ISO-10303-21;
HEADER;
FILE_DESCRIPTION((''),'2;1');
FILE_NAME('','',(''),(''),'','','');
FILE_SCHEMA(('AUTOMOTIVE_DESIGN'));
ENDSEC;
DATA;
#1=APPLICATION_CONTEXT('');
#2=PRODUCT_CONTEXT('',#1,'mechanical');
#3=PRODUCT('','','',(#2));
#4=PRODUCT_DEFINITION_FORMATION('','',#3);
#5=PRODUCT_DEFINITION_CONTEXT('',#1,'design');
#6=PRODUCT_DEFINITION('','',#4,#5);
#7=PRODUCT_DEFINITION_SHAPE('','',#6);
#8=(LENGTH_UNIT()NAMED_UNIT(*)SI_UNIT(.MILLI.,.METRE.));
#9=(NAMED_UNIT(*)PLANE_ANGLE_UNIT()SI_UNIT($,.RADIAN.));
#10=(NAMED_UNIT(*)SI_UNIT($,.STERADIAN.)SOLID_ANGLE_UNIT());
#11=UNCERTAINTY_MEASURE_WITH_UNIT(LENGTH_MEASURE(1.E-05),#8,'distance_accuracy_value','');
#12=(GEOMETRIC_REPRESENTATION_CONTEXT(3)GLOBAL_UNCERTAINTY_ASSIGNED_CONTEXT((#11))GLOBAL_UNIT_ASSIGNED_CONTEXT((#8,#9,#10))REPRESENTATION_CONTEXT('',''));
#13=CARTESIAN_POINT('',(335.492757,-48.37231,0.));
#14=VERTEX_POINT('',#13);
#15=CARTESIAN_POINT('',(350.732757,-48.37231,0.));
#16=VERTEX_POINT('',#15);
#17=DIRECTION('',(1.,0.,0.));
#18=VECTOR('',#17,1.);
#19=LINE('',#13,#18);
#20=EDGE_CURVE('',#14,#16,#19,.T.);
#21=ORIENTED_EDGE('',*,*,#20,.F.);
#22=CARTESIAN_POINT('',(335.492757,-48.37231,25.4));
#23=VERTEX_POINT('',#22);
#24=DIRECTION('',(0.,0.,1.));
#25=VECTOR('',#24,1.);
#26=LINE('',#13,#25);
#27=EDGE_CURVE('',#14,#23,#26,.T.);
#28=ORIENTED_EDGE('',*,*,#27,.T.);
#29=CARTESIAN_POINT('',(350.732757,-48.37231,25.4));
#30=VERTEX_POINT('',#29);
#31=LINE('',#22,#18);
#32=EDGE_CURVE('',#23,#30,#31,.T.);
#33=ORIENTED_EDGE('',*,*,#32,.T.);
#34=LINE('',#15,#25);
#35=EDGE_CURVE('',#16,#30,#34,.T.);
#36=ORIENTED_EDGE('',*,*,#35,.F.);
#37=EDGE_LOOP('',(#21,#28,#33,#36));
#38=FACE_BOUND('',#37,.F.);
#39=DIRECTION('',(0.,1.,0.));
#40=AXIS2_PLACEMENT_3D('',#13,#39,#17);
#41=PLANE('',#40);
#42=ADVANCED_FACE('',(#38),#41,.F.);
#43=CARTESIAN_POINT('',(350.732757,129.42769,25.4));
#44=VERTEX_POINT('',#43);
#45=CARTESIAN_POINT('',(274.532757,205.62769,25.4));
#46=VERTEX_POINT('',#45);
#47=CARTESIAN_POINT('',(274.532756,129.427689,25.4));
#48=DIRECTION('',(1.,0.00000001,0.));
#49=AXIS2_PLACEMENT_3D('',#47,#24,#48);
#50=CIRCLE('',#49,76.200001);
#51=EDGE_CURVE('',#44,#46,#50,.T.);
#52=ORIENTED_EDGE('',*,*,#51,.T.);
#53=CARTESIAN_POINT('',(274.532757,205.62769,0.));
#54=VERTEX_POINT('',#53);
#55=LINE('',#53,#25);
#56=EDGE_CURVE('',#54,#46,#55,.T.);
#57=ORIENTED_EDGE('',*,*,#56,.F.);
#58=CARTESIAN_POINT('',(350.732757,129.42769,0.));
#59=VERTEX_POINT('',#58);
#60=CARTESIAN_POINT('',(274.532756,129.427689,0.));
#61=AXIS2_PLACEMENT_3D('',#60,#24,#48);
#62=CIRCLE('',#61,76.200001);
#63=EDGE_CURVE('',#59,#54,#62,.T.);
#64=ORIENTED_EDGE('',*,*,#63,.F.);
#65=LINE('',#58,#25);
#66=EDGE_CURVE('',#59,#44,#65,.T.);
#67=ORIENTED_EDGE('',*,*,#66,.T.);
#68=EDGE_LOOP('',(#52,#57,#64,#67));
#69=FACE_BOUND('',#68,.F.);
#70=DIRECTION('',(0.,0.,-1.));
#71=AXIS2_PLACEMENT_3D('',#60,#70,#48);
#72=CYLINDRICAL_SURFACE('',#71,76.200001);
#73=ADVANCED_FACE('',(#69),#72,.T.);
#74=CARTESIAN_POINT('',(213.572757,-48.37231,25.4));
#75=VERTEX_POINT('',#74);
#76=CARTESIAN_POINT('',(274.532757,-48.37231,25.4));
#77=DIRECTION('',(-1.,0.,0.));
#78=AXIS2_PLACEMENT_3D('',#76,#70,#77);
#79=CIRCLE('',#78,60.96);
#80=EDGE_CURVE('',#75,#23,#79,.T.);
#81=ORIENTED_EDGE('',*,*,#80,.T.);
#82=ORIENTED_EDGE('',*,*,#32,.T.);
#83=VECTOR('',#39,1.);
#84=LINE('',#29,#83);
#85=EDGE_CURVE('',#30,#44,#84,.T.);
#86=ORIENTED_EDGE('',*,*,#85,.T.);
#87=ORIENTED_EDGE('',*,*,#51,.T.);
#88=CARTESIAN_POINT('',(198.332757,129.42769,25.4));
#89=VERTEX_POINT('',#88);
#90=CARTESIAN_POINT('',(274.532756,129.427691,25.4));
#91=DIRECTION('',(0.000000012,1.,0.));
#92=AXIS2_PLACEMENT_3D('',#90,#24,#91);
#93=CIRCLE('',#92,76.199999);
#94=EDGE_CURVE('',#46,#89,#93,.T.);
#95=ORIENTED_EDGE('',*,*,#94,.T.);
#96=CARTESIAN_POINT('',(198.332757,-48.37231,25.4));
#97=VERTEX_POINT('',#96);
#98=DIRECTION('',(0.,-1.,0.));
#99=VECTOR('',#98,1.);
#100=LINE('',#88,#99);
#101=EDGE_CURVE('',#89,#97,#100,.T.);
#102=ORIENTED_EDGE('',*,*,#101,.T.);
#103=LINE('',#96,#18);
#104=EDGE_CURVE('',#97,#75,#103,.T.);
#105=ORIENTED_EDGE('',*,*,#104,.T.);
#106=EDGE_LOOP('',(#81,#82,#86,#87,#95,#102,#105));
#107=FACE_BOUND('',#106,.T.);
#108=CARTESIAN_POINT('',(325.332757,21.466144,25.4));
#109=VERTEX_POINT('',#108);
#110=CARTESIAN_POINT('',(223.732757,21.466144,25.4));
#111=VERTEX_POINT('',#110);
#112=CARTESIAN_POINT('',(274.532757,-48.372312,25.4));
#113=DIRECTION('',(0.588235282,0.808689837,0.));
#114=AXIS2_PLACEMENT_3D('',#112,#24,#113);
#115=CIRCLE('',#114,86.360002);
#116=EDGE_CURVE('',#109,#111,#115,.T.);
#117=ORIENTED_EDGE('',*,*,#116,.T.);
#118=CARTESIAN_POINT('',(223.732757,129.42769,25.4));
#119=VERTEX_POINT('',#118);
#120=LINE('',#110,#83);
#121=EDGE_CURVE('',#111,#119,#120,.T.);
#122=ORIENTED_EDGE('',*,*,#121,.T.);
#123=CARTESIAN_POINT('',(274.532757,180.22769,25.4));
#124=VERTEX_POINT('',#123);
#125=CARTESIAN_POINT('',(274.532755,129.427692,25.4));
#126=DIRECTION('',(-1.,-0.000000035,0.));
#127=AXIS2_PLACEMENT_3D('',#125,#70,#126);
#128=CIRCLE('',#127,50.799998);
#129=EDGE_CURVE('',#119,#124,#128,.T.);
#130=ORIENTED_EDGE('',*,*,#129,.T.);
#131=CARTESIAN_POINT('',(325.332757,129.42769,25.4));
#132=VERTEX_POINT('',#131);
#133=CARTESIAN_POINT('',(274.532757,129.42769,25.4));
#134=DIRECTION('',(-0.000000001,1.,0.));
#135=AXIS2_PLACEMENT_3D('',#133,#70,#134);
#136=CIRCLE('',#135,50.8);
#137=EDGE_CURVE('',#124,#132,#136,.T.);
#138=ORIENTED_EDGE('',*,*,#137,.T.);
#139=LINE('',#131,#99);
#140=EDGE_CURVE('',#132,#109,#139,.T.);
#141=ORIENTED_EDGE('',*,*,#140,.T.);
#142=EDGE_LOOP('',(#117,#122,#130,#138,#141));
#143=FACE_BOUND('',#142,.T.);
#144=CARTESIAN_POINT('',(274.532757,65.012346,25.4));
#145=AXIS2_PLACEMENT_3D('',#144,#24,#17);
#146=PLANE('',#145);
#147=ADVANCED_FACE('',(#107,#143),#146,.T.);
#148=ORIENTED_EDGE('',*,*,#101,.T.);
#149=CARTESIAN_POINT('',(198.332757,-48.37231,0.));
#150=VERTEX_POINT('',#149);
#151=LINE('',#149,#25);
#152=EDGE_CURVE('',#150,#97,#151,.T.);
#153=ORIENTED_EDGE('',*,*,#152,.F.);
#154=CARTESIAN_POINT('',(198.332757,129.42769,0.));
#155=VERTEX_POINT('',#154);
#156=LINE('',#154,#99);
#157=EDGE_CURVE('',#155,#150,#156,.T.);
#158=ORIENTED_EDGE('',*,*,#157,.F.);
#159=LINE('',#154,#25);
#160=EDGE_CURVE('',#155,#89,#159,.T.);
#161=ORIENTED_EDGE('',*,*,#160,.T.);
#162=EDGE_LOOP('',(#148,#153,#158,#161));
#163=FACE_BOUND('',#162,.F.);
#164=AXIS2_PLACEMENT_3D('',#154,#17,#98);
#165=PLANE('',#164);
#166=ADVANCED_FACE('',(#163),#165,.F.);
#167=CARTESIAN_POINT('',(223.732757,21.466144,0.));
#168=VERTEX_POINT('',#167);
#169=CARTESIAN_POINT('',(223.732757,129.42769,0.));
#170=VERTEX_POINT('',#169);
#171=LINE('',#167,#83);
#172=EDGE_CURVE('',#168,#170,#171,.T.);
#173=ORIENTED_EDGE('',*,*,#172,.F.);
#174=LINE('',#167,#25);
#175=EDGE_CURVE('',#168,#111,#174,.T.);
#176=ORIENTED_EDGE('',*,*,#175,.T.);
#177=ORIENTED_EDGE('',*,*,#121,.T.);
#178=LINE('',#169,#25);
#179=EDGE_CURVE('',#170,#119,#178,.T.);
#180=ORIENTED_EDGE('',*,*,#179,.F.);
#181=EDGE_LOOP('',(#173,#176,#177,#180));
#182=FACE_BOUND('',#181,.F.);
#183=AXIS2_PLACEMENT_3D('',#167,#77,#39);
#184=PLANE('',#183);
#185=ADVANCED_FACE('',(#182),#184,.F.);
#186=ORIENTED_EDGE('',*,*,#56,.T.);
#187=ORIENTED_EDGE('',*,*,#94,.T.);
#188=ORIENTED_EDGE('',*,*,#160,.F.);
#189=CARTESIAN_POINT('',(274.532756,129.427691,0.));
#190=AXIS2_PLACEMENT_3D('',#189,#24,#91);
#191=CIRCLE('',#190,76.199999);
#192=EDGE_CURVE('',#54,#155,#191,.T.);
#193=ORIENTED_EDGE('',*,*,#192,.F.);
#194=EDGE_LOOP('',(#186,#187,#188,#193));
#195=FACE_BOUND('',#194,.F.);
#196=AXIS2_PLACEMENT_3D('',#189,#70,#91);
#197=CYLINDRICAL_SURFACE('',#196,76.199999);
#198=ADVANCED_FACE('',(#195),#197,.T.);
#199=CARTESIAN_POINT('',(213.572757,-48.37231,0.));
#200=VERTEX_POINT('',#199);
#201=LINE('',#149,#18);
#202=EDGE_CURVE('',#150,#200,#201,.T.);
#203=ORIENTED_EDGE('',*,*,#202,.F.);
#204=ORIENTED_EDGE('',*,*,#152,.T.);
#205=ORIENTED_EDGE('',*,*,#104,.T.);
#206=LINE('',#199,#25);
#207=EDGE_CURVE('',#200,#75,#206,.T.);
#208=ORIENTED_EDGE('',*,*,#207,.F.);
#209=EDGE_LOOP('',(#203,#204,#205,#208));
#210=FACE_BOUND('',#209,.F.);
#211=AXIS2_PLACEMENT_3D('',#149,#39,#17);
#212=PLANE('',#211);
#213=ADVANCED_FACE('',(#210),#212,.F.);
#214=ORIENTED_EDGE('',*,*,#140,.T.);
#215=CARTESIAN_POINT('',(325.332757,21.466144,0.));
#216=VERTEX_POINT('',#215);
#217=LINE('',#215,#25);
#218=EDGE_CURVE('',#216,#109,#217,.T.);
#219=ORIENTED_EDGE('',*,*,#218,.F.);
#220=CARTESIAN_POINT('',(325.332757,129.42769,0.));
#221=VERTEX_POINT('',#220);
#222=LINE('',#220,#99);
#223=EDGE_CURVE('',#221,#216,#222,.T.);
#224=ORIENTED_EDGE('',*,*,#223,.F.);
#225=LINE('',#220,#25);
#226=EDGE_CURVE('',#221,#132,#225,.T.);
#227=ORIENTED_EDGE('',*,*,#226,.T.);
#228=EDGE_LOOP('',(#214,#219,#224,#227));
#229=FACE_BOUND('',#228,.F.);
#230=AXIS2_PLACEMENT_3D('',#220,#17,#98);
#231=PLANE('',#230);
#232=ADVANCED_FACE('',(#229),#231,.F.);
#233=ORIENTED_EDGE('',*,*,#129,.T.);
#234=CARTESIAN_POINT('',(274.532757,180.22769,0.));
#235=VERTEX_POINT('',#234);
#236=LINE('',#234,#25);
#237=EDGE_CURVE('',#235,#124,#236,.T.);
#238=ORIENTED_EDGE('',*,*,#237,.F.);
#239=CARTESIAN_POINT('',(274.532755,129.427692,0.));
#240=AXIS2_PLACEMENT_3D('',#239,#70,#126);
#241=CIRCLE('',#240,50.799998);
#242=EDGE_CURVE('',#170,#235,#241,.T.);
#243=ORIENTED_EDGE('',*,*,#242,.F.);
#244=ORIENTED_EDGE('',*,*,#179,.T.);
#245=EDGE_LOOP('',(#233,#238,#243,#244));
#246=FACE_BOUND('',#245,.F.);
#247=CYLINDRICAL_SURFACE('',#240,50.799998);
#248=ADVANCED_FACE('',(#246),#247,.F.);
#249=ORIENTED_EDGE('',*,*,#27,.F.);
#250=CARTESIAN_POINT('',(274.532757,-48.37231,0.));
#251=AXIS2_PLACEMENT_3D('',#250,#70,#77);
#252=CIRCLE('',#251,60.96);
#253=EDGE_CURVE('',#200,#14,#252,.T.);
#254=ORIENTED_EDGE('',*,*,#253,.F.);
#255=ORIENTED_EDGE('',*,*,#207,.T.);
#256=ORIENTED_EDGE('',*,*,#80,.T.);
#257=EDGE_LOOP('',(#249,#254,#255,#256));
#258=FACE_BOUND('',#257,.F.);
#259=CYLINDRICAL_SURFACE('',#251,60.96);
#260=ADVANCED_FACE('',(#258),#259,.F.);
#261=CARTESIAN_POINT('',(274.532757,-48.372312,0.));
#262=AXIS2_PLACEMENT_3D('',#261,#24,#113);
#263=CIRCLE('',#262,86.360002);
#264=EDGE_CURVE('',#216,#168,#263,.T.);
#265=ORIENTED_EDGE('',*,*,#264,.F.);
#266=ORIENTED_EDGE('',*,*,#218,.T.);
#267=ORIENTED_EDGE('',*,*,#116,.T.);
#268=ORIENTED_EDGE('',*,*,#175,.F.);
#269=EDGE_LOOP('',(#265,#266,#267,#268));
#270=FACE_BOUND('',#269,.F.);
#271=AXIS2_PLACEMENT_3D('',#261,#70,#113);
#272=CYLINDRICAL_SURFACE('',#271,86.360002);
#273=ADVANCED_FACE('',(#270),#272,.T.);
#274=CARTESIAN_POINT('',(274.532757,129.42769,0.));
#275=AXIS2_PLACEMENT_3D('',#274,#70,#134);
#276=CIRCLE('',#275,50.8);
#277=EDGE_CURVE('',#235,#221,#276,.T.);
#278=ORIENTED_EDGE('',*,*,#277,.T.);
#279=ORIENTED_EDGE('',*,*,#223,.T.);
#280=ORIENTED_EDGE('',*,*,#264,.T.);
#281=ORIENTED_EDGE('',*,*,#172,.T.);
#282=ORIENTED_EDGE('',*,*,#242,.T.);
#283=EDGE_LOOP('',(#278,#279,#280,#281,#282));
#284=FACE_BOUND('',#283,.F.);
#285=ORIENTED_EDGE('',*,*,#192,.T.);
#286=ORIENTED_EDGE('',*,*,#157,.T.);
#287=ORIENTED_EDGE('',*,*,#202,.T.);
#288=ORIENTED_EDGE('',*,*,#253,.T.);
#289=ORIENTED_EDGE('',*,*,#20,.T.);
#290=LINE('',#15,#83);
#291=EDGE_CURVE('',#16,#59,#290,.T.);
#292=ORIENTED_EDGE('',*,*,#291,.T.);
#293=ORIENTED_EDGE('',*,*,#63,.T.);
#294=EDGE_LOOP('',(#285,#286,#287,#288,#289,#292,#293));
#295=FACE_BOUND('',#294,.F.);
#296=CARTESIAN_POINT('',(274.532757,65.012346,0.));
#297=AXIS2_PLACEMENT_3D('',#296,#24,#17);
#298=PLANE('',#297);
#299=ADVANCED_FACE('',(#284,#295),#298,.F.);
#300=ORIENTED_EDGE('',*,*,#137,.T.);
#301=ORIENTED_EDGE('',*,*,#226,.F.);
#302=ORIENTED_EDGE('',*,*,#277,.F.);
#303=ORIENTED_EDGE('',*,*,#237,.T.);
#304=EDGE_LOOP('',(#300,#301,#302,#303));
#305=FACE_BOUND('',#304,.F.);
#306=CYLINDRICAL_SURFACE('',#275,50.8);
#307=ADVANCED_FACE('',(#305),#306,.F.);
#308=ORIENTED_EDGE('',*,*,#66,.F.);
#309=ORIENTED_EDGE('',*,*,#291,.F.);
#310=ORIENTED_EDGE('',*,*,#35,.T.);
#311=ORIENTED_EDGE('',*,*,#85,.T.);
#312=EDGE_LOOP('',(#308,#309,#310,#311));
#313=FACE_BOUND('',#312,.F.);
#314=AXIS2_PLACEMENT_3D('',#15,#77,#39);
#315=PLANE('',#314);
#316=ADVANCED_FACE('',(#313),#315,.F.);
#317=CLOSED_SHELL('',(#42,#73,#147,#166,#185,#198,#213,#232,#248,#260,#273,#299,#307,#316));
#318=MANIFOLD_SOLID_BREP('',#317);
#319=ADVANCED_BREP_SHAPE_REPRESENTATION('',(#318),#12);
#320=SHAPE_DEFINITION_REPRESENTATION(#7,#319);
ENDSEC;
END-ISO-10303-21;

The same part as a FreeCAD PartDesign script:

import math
import FreeCAD as App
import Part
import Sketcher

V = App.Vector
Q = App.Units.Quantity

doc = App.newDocument("Part")
body = doc.addObject("PartDesign::Body", "Body")

# Sketch on XY plane
sketch1 = body.newObject("Sketcher::SketchObject", "Sketch")
sketch1.AttachmentSupport = (doc.getObject("XY_Plane"), [""])
sketch1.MapMode = "FlatFace"
sketch1.addGeometry(Part.LineSegment(V(198, 129, 0), V(198, -48, 0)), False)
sketch1.addGeometry(Part.LineSegment(V(198, -48, 0), V(214, -48, 0)), False)
sketch1.addGeometry(Part.ArcOfCircle(Part.Circle(V(275, -48, 0), V(0, 0, 1), 61), math.radians(0), math.radians(180)), False)
sketch1.addGeometry(Part.LineSegment(V(335, -48, 0), V(351, -48, 0)), False)
sketch1.addGeometry(Part.LineSegment(V(351, -48, 0), V(351, 129, 0)), False)
sketch1.addGeometry(Part.ArcOfCircle(Part.Circle(V(275, 129, 0), V(0, 0, 1), 76), math.radians(0), math.radians(90)), False)
sketch1.addGeometry(Part.ArcOfCircle(Part.Circle(V(275, 129, 0), V(0, 0, 1), 76), math.radians(90), math.radians(180)), False)
sketch1.addGeometry(Part.LineSegment(V(224, 21, 0), V(224, 129, 0)), False)
sketch1.addGeometry(Part.ArcOfCircle(Part.Circle(V(275, 129, 0), V(0, 0, 1), 51), math.radians(90), math.radians(180)), False)
sketch1.addGeometry(Part.ArcOfCircle(Part.Circle(V(275, 129, 0), V(0, 0, 1), 51), math.radians(0), math.radians(90)), False)
sketch1.addGeometry(Part.LineSegment(V(325, 129, 0), V(325, 21, 0)), False)
sketch1.addGeometry(Part.ArcOfCircle(Part.Circle(V(275, -48, 0), V(0, 0, 1), 86), math.radians(54), math.radians(126)), False)
sketch1.addConstraint(Sketcher.Constraint("Coincident", 0, 2, 1, 1))
sketch1.addConstraint(Sketcher.Constraint("Coincident", 1, 2, 2, 2))
sketch1.addConstraint(Sketcher.Constraint("Coincident", 2, 1, 3, 1))
sketch1.addConstraint(Sketcher.Constraint("Coincident", 3, 2, 4, 1))
sketch1.addConstraint(Sketcher.Constraint("Tangent", 4, 2, 5, 1))
sketch1.addConstraint(Sketcher.Constraint("Tangent", 5, 2, 6, 1))
sketch1.addConstraint(Sketcher.Constraint("Tangent", 6, 2, 0, 1))
sketch1.addConstraint(Sketcher.Constraint("Tangent", 7, 2, 8, 2))
sketch1.addConstraint(Sketcher.Constraint("Tangent", 8, 1, 9, 2))
sketch1.addConstraint(Sketcher.Constraint("Tangent", 9, 1, 10, 1))
sketch1.addConstraint(Sketcher.Constraint("Coincident", 10, 2, 11, 1))
sketch1.addConstraint(Sketcher.Constraint("Coincident", 11, 2, 7, 1))
sketch1.addConstraint(Sketcher.Constraint("Vertical", 0))
sketch1.addConstraint(Sketcher.Constraint("Horizontal", 1))
sketch1.addConstraint(Sketcher.Constraint("Horizontal", 3))
sketch1.addConstraint(Sketcher.Constraint("Vertical", 4))
sketch1.addConstraint(Sketcher.Constraint("Vertical", 7))
sketch1.addConstraint(Sketcher.Constraint("Vertical", 10))
sketch1.addConstraint(Sketcher.Constraint("Coincident", 8, 3, 5, 3))
sketch1.addConstraint(Sketcher.Constraint("Coincident", 11, 3, 2, 3))
sketch1.addConstraint(Sketcher.Constraint("Equal", 5, 6))
sketch1.addConstraint(Sketcher.Constraint("Equal", 8, 9))
sketch1.addConstraint(Sketcher.Constraint("Horizontal", 11, 3, 0, 2))
sketch1.addConstraint(Sketcher.Constraint("Horizontal", 1, 2, 2, 1))
sketch1.addConstraint(Sketcher.Constraint("Horizontal", 10, 2, 11, 2))
sketch1.addConstraint(Sketcher.Constraint("Vertical", 11, 3, 5, 2))
sketch1.addConstraint(Sketcher.Constraint("Vertical", 5, 2, 8, 1))
sketch1.addConstraint(Sketcher.Constraint("Radius", 5, Q("3 in")))
sketch1.addConstraint(Sketcher.Constraint("Radius", 8, Q("1.9999999 in")))
sketch1.addConstraint(Sketcher.Constraint("Radius", 2, Q("2.4 in")))
sketch1.addConstraint(Sketcher.Constraint("Radius", 11, Q("3.4000001 in")))
sketch1.addConstraint(Sketcher.Constraint("DistanceY", 0, 2, 0, 1, Q("7 in")))
sketch1.addConstraint(Sketcher.Constraint("DistanceY", 2, 3, -1, 1, Q("48.37231 mm")))
sketch1.addConstraint(Sketcher.Constraint("DistanceX", -1, 1, 2, 3, Q("274.532757 mm")))
pad1 = body.newObject("PartDesign::Pad", "Pad")
pad1.Profile = sketch1
pad1.Length = Q("1 in")

doc.recompute()
